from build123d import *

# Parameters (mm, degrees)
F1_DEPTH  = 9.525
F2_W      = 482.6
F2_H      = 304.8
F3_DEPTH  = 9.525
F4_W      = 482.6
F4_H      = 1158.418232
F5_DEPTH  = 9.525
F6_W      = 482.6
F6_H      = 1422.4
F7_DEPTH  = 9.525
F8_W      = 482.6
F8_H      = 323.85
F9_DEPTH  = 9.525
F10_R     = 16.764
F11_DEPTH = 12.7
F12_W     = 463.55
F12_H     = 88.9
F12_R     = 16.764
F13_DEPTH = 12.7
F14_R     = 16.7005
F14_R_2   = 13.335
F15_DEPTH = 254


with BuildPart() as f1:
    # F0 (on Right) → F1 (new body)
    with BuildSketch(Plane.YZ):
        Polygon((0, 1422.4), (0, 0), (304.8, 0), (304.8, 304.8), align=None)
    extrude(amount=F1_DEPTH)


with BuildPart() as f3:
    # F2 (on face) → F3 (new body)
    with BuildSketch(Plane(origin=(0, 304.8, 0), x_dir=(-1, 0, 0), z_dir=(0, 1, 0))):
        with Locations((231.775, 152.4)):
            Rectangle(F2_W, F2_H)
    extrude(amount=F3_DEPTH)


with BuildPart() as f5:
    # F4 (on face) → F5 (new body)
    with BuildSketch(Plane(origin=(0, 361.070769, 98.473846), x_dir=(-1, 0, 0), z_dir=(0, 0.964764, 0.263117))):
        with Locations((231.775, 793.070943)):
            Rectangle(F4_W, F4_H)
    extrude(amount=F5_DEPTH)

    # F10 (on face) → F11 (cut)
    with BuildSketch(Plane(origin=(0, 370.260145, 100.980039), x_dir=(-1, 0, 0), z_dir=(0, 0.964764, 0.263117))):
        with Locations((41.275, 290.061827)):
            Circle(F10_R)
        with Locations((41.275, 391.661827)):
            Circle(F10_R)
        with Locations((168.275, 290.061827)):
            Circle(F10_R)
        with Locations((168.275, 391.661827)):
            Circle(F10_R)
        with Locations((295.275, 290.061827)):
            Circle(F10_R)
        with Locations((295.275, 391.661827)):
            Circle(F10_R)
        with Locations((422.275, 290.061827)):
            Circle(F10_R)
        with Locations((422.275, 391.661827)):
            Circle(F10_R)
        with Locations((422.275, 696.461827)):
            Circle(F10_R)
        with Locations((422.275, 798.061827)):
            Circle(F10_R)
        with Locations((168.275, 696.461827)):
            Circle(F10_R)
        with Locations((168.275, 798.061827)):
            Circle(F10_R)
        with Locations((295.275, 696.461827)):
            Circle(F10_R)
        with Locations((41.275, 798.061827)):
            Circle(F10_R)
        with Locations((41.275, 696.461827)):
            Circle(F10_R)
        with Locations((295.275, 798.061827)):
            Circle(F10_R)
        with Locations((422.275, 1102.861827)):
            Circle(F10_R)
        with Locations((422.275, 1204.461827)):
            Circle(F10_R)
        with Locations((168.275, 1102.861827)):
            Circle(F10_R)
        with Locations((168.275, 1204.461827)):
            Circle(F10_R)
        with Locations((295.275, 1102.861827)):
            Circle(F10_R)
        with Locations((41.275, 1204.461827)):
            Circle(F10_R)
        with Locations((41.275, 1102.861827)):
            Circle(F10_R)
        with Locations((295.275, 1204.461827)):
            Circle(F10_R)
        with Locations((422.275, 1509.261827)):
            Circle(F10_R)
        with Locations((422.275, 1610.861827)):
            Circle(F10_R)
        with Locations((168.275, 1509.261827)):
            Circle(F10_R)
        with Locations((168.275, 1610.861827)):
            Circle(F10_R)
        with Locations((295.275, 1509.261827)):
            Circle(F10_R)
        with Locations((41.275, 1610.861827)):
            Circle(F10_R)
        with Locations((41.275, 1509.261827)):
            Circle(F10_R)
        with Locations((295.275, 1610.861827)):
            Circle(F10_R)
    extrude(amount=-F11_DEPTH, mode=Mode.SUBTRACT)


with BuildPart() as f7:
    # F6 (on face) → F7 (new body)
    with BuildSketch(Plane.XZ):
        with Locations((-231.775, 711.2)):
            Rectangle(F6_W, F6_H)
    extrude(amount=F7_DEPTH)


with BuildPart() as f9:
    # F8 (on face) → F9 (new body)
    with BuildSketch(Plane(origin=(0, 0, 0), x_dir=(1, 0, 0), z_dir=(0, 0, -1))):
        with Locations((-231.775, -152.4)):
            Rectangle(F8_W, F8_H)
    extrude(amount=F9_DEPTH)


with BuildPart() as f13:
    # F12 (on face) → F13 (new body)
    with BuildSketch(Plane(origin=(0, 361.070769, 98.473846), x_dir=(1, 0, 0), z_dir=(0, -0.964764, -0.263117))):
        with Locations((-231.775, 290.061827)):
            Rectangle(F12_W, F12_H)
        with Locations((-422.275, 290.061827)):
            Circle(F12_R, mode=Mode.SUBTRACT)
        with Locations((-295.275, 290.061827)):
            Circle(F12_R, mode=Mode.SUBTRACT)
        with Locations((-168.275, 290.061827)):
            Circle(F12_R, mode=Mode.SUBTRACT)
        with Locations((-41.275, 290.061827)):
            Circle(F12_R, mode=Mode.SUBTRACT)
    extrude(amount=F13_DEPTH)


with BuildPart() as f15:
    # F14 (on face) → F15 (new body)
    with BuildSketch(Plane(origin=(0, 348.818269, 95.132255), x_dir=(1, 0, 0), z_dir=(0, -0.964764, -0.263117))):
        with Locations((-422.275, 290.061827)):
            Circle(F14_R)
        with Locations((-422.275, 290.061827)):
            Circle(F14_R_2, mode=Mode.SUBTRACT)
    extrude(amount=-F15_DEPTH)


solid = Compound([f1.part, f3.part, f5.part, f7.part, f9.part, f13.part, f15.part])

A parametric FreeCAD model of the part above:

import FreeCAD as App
import Part
import Sketcher

V = App.Vector
Q = App.Units.Quantity

doc = App.newDocument("Part")
body = doc.addObject("PartDesign::Body", "Body")

# Sketch on YZ plane
sketch1 = body.newObject("Sketcher::SketchObject", "Sketch")
sketch1.AttachmentSupport = (doc.getObject("YZ_Plane"), [""])
sketch1.MapMode = "FlatFace"
sketch1.addGeometry([
    Part.LineSegment(V(0, 1422, 0), V(0, 0, 0)),
    Part.LineSegment(V(0, 0, 0), V(305, 0, 0)),
    Part.LineSegment(V(305, 0, 0), V(305, 305, 0)),
    Part.LineSegment(V(305, 305, 0), V(0, 1422, 0)),
], False)
sketch1.addConstraint([
    Sketcher.Constraint("Coincident", 0, 2, 1, 1),
    Sketcher.Constraint("Coincident", 1, 2, 2, 1),
    Sketcher.Constraint("Coincident", 2, 2, 3, 1),
    Sketcher.Constraint("Coincident", 3, 2, 0, 1),
    Sketcher.Constraint("Vertical", 0),
    Sketcher.Constraint("Horizontal", 1),
    Sketcher.Constraint("Vertical", 2),
    Sketcher.Constraint("Coincident", 0, 2, -1, 1),
    Sketcher.Constraint("Equal", 1, 2),
    Sketcher.Constraint("DistanceX", 1, 1, 1, 2, Q("12 in")),
    Sketcher.Constraint("DistanceY", 0, 2, 0, 1, Q("56 in")),
])
pad1 = body.newObject("PartDesign::Pad", "Pad")
pad1.Profile = sketch1
pad1.Length = Q("0.375 in")
body2 = doc.addObject("PartDesign::Body", "Body001")

# Sketch on XZ plane
sketch2 = body2.newObject("Sketcher::SketchObject", "Sketch001")
sketch2.AttachmentSupport = (doc.getObject("XZ_Plane001"), [""])
sketch2.MapMode = "FlatFace"
sketch2.AttachmentOffset = App.Placement(V(0, 0, -12 * 25.4), App.Rotation())
sketch2.addGeometry([
    Part.LineSegment(V(10, 305, 0), V(10, 0, 0)),
    Part.LineSegment(V(10, 0, 0), V(-473, 0, 0)),
    Part.LineSegment(V(-473, 0, 0), V(-473, 305, 0)),
    Part.LineSegment(V(-473, 305, 0), V(10, 305, 0)),
], False)
sketch2.addConstraint([
    Sketcher.Constraint("Coincident", 0, 2, 1, 1),
    Sketcher.Constraint("Coincident", 1, 2, 2, 1),
    Sketcher.Constraint("Coincident", 2, 2, 3, 1),
    Sketcher.Constraint("Coincident", 3, 2, 0, 1),
    Sketcher.Constraint("Vertical", 0),
    Sketcher.Constraint("Horizontal", 1),
    Sketcher.Constraint("Vertical", 2),
    Sketcher.Constraint("Horizontal", 3),
    Sketcher.Constraint("PointOnObject", 0, 2, -1),
    Sketcher.Constraint("DistanceX", 1, 2, 1, 1, Q("19 in")),
    Sketcher.Constraint("DistanceY", 0, 2, 0, 1, Q("12 in")),
    Sketcher.Constraint("DistanceX", -1, 1, 0, 2, Q("0.375 in")),
])
pad2 = body2.newObject("PartDesign::Pad", "Pad001")
pad2.Profile = sketch2
pad2.Length = Q("0.375 in")
pad2.Reversed = True
body3 = doc.addObject("PartDesign::Body", "Body002")

# Sketch on an angled plane
sketch3 = body3.newObject("Sketcher::SketchObject", "Sketch002")
sketch3.Placement = App.Placement(V(0, 361.070769, 98.473846), App.Rotation(V(-1, 0, 0), V(0, -0.263116983, 0.964763937), V(0, 0.964763937, 0.263116983), "ZXY"))
sketch3.addGeometry([
    Part.LineSegment(V(-10, 1372, 0), V(-10, 214, 0)),
    Part.LineSegment(V(-10, 214, 0), V(473, 214, 0)),
    Part.LineSegment(V(473, 214, 0), V(473, 1372, 0)),
    Part.LineSegment(V(473, 1372, 0), V(-10, 1372, 0)),
], False)
sketch3.addConstraint([
    Sketcher.Constraint("Coincident", 0, 2, 1, 1),
    Sketcher.Constraint("Coincident", 1, 2, 2, 1),
    Sketcher.Constraint("Coincident", 2, 2, 3, 1),
    Sketcher.Constraint("Coincident", 3, 2, 0, 1),
    Sketcher.Constraint("Vertical", 0),
    Sketcher.Constraint("Horizontal", 1),
    Sketcher.Constraint("Vertical", 2),
    Sketcher.Constraint("Horizontal", 3),
    Sketcher.Constraint("DistanceX", 1, 1, 1, 2, Q("19 in")),
    Sketcher.Constraint("DistanceX", 0, 2, -1, 1, Q("0.375 in")),
    Sketcher.Constraint("DistanceY", 0, 2, 0, 1, 1158.418233),
    Sketcher.Constraint("DistanceY", -1, 1, 2, 2, 1372.28006),
])
pad3 = body3.newObject("PartDesign::Pad", "Pad002")
pad3.Profile = sketch3
pad3.Length = Q("0.375 in")

# Sketch on an angled plane
sketch4 = body3.newObject("Sketcher::SketchObject", "Sketch003")
sketch4.Placement = App.Placement(V(0, 370.260145, 100.980039), App.Rotation(V(-1, 0, 0), V(0, -0.263116983, 0.964763937), V(0, 0.964763937, 0.263116983), "ZXY"))
sketch4.addGeometry([
    Part.Circle(V(41, 290, 0), V(0, 0, 1), 17),  # 0
    Part.Circle(V(41, 392, 0), V(0, 0, 1), 17),  # 1
    Part.Circle(V(168, 290, 0), V(0, 0, 1), 17),  # 2
    Part.Circle(V(168, 392, 0), V(0, 0, 1), 17),  # 3
    Part.Circle(V(295, 290, 0), V(0, 0, 1), 17),  # 4
    Part.Circle(V(295, 392, 0), V(0, 0, 1), 17),  # 5
    Part.Circle(V(422, 290, 0), V(0, 0, 1), 17),  # 6
    Part.Circle(V(422, 392, 0), V(0, 0, 1), 17),  # 7
    Part.Circle(V(422, 696, 0), V(0, 0, 1), 17),  # 8
    Part.Circle(V(422, 798, 0), V(0, 0, 1), 17),  # 9
    Part.Circle(V(168, 696, 0), V(0, 0, 1), 17),  # 10
    Part.Circle(V(168, 798, 0), V(0, 0, 1), 17),  # 11
    Part.Circle(V(295, 696, 0), V(0, 0, 1), 17),  # 12
    Part.Circle(V(41, 798, 0), V(0, 0, 1), 17),  # 13
    Part.Circle(V(41, 696, 0), V(0, 0, 1), 17),  # 14
    Part.Circle(V(295, 798, 0), V(0, 0, 1), 17),  # 15
    Part.Circle(V(422, 1103, 0), V(0, 0, 1), 17),  # 16
    Part.Circle(V(422, 1204, 0), V(0, 0, 1), 17),  # 17
    Part.Circle(V(168, 1103, 0), V(0, 0, 1), 17),  # 18
    Part.Circle(V(168, 1204, 0), V(0, 0, 1), 17),  # 19
    Part.Circle(V(295, 1103, 0), V(0, 0, 1), 17),  # 20
    Part.Circle(V(41, 1204, 0), V(0, 0, 1), 17),  # 21
    Part.Circle(V(41, 1103, 0), V(0, 0, 1), 17),  # 22
    Part.Circle(V(295, 1204, 0), V(0, 0, 1), 17),  # 23
    Part.Circle(V(422, 1509, 0), V(0, 0, 1), 17),  # 24
    Part.Circle(V(422, 1611, 0), V(0, 0, 1), 17),  # 25
    Part.Circle(V(168, 1509, 0), V(0, 0, 1), 17),  # 26
    Part.Circle(V(168, 1611, 0), V(0, 0, 1), 17),  # 27
    Part.Circle(V(295, 1509, 0), V(0, 0, 1), 17),  # 28
    Part.Circle(V(41, 1611, 0), V(0, 0, 1), 17),  # 29
    Part.Circle(V(41, 1509, 0), V(0, 0, 1), 17),  # 30
    Part.Circle(V(295, 1611, 0), V(0, 0, 1), 17),  # 31
], False)
sketch4.addConstraint([
    Sketcher.Constraint("Equal", 0, 1),
    Sketcher.Constraint("Equal", 1, 2),
    Sketcher.Constraint("Equal", 2, 3),
    Sketcher.Constraint("Equal", 3, 4),
    Sketcher.Constraint("Equal", 4, 5),
    Sketcher.Constraint("Equal", 5, 6),
    Sketcher.Constraint("Equal", 6, 7),
    Sketcher.Constraint("Equal", 7, 8),
    Sketcher.Constraint("Equal", 8, 9),
    Sketcher.Constraint("Equal", 9, 10),
    Sketcher.Constraint("Equal", 10, 11),
    Sketcher.Constraint("Equal", 11, 12),
    Sketcher.Constraint("Equal", 12, 13),
    Sketcher.Constraint("Equal", 13, 14),
    Sketcher.Constraint("Equal", 14, 15),
    Sketcher.Constraint("Equal", 15, 16),
    Sketcher.Constraint("Equal", 16, 17),
    Sketcher.Constraint("Equal", 17, 18),
    Sketcher.Constraint("Equal", 18, 19),
    Sketcher.Constraint("Equal", 19, 20),
    Sketcher.Constraint("Equal", 20, 21),
    Sketcher.Constraint("Equal", 21, 22),
    Sketcher.Constraint("Equal", 22, 23),
    Sketcher.Constraint("Equal", 23, 24),
    Sketcher.Constraint("Equal", 24, 25),
    Sketcher.Constraint("Equal", 25, 26),
    Sketcher.Constraint("Equal", 26, 27),
    Sketcher.Constraint("Equal", 27, 28),
    Sketcher.Constraint("Equal", 28, 29),
    Sketcher.Constraint("Equal", 29, 30),
    Sketcher.Constraint("Equal", 30, 31),
    Sketcher.Constraint("Horizontal", 0, 3, 2, 3),
    Sketcher.Constraint("Horizontal", 1, 3, 3, 3),
    Sketcher.Constraint("Horizontal", 2, 3, 4, 3),
    Sketcher.Constraint("Horizontal", 3, 3, 5, 3),
    Sketcher.Constraint("Horizontal", 4, 3, 6, 3),
    Sketcher.Constraint("Horizontal", 5, 3, 7, 3),
    Sketcher.Constraint("Horizontal", 8, 3, 10, 3),
    Sketcher.Constraint("Horizontal", 9, 3, 11, 3),
    Sketcher.Constraint("Horizontal", 10, 3, 12, 3),
    Sketcher.Constraint("Horizontal", 11, 3, 13, 3),
    Sketcher.Constraint("Horizontal", 12, 3, 14, 3),
    Sketcher.Constraint("Horizontal", 13, 3, 15, 3),
    Sketcher.Constraint("Horizontal", 16, 3, 18, 3),
    Sketcher.Constraint("Horizontal", 17, 3, 19, 3),
    Sketcher.Constraint("Horizontal", 18, 3, 20, 3),
    Sketcher.Constraint("Horizontal", 19, 3, 21, 3),
    Sketcher.Constraint("Horizontal", 20, 3, 22, 3),
    Sketcher.Constraint("Horizontal", 21, 3, 23, 3),
    Sketcher.Constraint("Horizontal", 24, 3, 26, 3),
    Sketcher.Constraint("Horizontal", 25, 3, 27, 3),
    Sketcher.Constraint("Horizontal", 26, 3, 28, 3),
    Sketcher.Constraint("Horizontal", 27, 3, 29, 3),
    Sketcher.Constraint("Horizontal", 28, 3, 30, 3),
    Sketcher.Constraint("Horizontal", 29, 3, 31, 3),
    Sketcher.Constraint("Vertical", 0, 3, 1, 3),
    Sketcher.Constraint("Vertical", 2, 3, 3, 3),
    Sketcher.Constraint("Vertical", 4, 3, 5, 3),
    Sketcher.Constraint("Vertical", 6, 3, 7, 3),
    Sketcher.Constraint("Vertical", 7, 3, 8, 3),
    Sketcher.Constraint("Vertical", 8, 3, 9, 3),
    Sketcher.Constraint("Vertical", 3, 3, 10, 3),
    Sketcher.Constraint("Vertical", 10, 3, 11, 3),
    Sketcher.Constraint("Vertical", 5, 3, 12, 3),
    Sketcher.Constraint("Vertical", 1, 3, 13, 3),
    Sketcher.Constraint("Vertical", 13, 3, 14, 3),
    Sketcher.Constraint("Vertical", 12, 3, 15, 3),
    Sketcher.Constraint("Vertical", 9, 3, 16, 3),
    Sketcher.Constraint("Vertical", 16, 3, 17, 3),
    Sketcher.Constraint("Vertical", 11, 3, 18, 3),
    Sketcher.Constraint("Vertical", 18, 3, 19, 3),
    Sketcher.Constraint("Vertical", 15, 3, 20, 3),
    Sketcher.Constraint("Vertical", 14, 3, 21, 3),
    Sketcher.Constraint("Vertical", 21, 3, 22, 3),
    Sketcher.Constraint("Vertical", 20, 3, 23, 3),
    Sketcher.Constraint("Vertical", 17, 3, 24, 3),
    Sketcher.Constraint("Vertical", 24, 3, 25, 3),
    Sketcher.Constraint("Vertical", 19, 3, 26, 3),
    Sketcher.Constraint("Vertical", 26, 3, 27, 3),
    Sketcher.Constraint("Vertical", 23, 3, 28, 3),
    Sketcher.Constraint("Vertical", 22, 3, 29, 3),
    Sketcher.Constraint("Vertical", 29, 3, 30, 3),
    Sketcher.Constraint("Vertical", 28, 3, 31, 3),
    Sketcher.Constraint("Diameter", 0, Q("1.32 in")),
    Sketcher.Constraint("DistanceY", 0, 3, 1, 3, Q("4 in")),
    Sketcher.Constraint("DistanceX", 0, 3, 2, 3, Q("5 in")),
    Sketcher.Constraint("DistanceX", 2, 3, 4, 3, Q("5 in")),
    Sketcher.Constraint("DistanceX", 4, 3, 6, 3, Q("5 in")),
    Sketcher.Constraint("DistanceY", 7, 3, 8, 3, Q("12 in")),
    Sketcher.Constraint("DistanceY", 8, 3, 9, 3, Q("4 in")),
    Sketcher.Constraint("DistanceY", 9, 3, 16, 3, Q("12 in")),
    Sketcher.Constraint("DistanceY", 16, 3, 17, 3, Q("4 in")),
    Sketcher.Constraint("DistanceY", 17, 3, 24, 3, Q("12 in")),
    Sketcher.Constraint("DistanceY", 24, 3, 25, 3, Q("4 in")),
    Sketcher.Constraint("DistanceX", -1, 1, 0, 3, Q("1.625 in")),
    Sketcher.Constraint("DistanceY", -1, 1, 17, 3, 1204.461828),
])
pocket1 = body3.newObject("PartDesign::Pocket", "Pocket")
pocket1.Profile = sketch4
pocket1.Length = Q("0.5 in")
body4 = doc.addObject("PartDesign::Body", "Body003")

# Sketch on XZ plane
sketch5 = body4.newObject("Sketcher::SketchObject", "Sketch004")
sketch5.AttachmentSupport = (doc.getObject("XZ_Plane003"), [""])
sketch5.MapMode = "FlatFace"
sketch5.addGeometry([
    Part.LineSegment(V(-473, 1422, 0), V(-473, 0, 0)),
    Part.LineSegment(V(-473, 0, 0), V(10, 0, 0)),
    Part.LineSegment(V(10, 0, 0), V(10, 1422, 0)),
    Part.LineSegment(V(10, 1422, 0), V(-473, 1422, 0)),
], False)
sketch5.addConstraint([
    Sketcher.Constraint("Coincident", 0, 2, 1, 1),
    Sketcher.Constraint("Coincident", 1, 2, 2, 1),
    Sketcher.Constraint("Coincident", 2, 2, 3, 1),
    Sketcher.Constraint("Coincident", 3, 2, 0, 1),
    Sketcher.Constraint("Vertical", 0),
    Sketcher.Constraint("Horizontal", 1),
    Sketcher.Constraint("Vertical", 2),
    Sketcher.Constraint("Horizontal", 3),
    Sketcher.Constraint("PointOnObject", 0, 2, -1),
    Sketcher.Constraint("DistanceX", 1, 1, 1, 2, Q("19 in")),
    Sketcher.Constraint("DistanceY", 0, 2, 0, 1, Q("56 in")),
    Sketcher.Constraint("DistanceX", 0, 2, -1, 1, Q("18.625 in")),
])
pad4 = body4.newObject("PartDesign::Pad", "Pad003")
pad4.Profile = sketch5
pad4.Length = Q("0.375 in")
body5 = doc.addObject("PartDesign::Body", "Body004")

# Sketch on XY plane
sketch6 = body5.newObject("Sketcher::SketchObject", "Sketch005")
sketch6.AttachmentSupport = (doc.getObject("XY_Plane004"), [""])
sketch6.MapMode = "FlatFace"
sketch6.addGeometry([
    Part.LineSegment(V(-473, -10, 0), V(-473, 314, 0)),
    Part.LineSegment(V(-473, 314, 0), V(10, 314, 0)),
    Part.LineSegment(V(10, 314, 0), V(10, -10, 0)),
    Part.LineSegment(V(10, -10, 0), V(-473, -10, 0)),
], False)
sketch6.addConstraint([
    Sketcher.Constraint("Coincident", 0, 2, 1, 1),
    Sketcher.Constraint("Coincident", 1, 2, 2, 1),
    Sketcher.Constraint("Coincident", 2, 2, 3, 1),
    Sketcher.Constraint("Coincident", 3, 2, 0, 1),
    Sketcher.Constraint("Vertical", 0),
    Sketcher.Constraint("Horizontal", 1),
    Sketcher.Constraint("Vertical", 2),
    Sketcher.Constraint("Horizontal", 3),
    Sketcher.Constraint("DistanceX", 1, 1, 1, 2, Q("19 in")),
    Sketcher.Constraint("DistanceY", 0, 1, 0, 2, Q("12.75 in")),
    Sketcher.Constraint("DistanceX", 0, 2, -1, 1, Q("18.625 in")),
    Sketcher.Constraint("DistanceY", -1, 1, 0, 2, Q("12.375 in")),
])
pad5 = body5.newObject("PartDesign::Pad", "Pad004")
pad5.Profile = sketch6
pad5.Length = Q("0.375 in")
pad5.Reversed = True
body6 = doc.addObject("PartDesign::Body", "Body005")

# Sketch on an angled plane
sketch7 = body6.newObject("Sketcher::SketchObject", "Sketch006")
sketch7.Placement = App.Placement(V(0, 361.070769, 98.473846), App.Rotation(V(1, 0, 0), V(0, -0.263116983, 0.964763937), V(0, -0.964763937, -0.263116983), "ZXY"))
sketch7.addGeometry([
    Part.LineSegment(V(-464, 335, 0), V(-464, 246, 0)),  # 0
    Part.LineSegment(V(-464, 246, 0), V(0, 246, 0)),  # 1
    Part.LineSegment(V(0, 246, 0), V(0, 335, 0)),  # 2
    Part.LineSegment(V(0, 335, 0), V(-464, 335, 0)),  # 3
    Part.Circle(V(-422, 290, 0), V(0, 0, 1), 17),  # 4
    Part.Circle(V(-295, 290, 0), V(0, 0, 1), 17),  # 5
    Part.Circle(V(-168, 290, 0), V(0, 0, 1), 17),  # 6
    Part.Circle(V(-41, 290, 0), V(0, 0, 1), 17),  # 7
], False)
sketch7.addConstraint([
    Sketcher.Constraint("Coincident", 0, 2, 1, 1),
    Sketcher.Constraint("Coincident", 1, 2, 2, 1),
    Sketcher.Constraint("Coincident", 2, 2, 3, 1),
    Sketcher.Constraint("Coincident", 3, 2, 0, 1),
    Sketcher.Constraint("Vertical", 0),
    Sketcher.Constraint("Horizontal", 1),
    Sketcher.Constraint("Vertical", 2),
    Sketcher.Constraint("Horizontal", 3),
    Sketcher.Constraint("Equal", 4, 5),
    Sketcher.Constraint("Equal", 5, 6),
    Sketcher.Constraint("Equal", 6, 7),
    Sketcher.Constraint("PointOnObject", 1, 2, -2),
    Sketcher.Constraint("Horizontal", 4, 3, 5, 3),
    Sketcher.Constraint("Horizontal", 5, 3, 6, 3),
    Sketcher.Constraint("Horizontal", 6, 3, 7, 3),
    Sketcher.Constraint("Diameter", 4, Q("1.32 in")),
    Sketcher.Constraint("DistanceY", 0, 2, 0, 1, Q("3.5 in")),
    Sketcher.Constraint("DistanceX", 4, 3, 5, 3, Q("5 in")),
    Sketcher.Constraint("DistanceX", 5, 3, 6, 3, Q("5 in")),
    Sketcher.Constraint("DistanceX", 6, 3, 7, 3, Q("5 in")),
    Sketcher.Constraint("DistanceX", 1, 1, 1, 2, Q("18.25 in")),
    Sketcher.Constraint("DistanceY", 0, 2, 4, 3, Q("1.75 in")),
    Sketcher.Constraint("DistanceX", 4, 3, -1, 1, Q("16.625 in")),
    Sketcher.Constraint("DistanceY", -1, 1, 4, 3, 290.061827),
])
pad6 = body6.newObject("PartDesign::Pad", "Pad005")
pad6.Profile = sketch7
pad6.Length = Q("0.5 in")
body7 = doc.addObject("PartDesign::Body", "Body006")

# Sketch on an angled plane
sketch8 = body7.newObject("Sketcher::SketchObject", "Sketch007")
sketch8.Placement = App.Placement(V(0, 348.818269, 95.132255), App.Rotation(V(1, 0, 0), V(0, -0.263116983, 0.964763937), V(0, -0.964763937, -0.263116983), "ZXY"))
sketch8.addGeometry([
    Part.Circle(V(-422, 290, 0), V(0, 0, 1), 17),
    Part.Circle(V(-422, 290, 0), V(0, 0, 1), 13),
], False)
sketch8.addConstraint([
    Sketcher.Constraint("Coincident", 1, 3, 0, 3),
    Sketcher.Constraint("Diameter", 1, Q("1.05 in")),
    Sketcher.Constraint("Diameter", 0, Q("1.315 in")),
    Sketcher.Constraint("DistanceX", 0, 3, -1, 1, Q("16.625 in")),
    Sketcher.Constraint("DistanceY", -1, 1, 0, 3, 290.061827),
])
pad7 = body7.newObject("PartDesign::Pad", "Pad006")
pad7.Profile = sketch8
pad7.Length = Q("10 in")
pad7.Reversed = True

doc.recompute()
